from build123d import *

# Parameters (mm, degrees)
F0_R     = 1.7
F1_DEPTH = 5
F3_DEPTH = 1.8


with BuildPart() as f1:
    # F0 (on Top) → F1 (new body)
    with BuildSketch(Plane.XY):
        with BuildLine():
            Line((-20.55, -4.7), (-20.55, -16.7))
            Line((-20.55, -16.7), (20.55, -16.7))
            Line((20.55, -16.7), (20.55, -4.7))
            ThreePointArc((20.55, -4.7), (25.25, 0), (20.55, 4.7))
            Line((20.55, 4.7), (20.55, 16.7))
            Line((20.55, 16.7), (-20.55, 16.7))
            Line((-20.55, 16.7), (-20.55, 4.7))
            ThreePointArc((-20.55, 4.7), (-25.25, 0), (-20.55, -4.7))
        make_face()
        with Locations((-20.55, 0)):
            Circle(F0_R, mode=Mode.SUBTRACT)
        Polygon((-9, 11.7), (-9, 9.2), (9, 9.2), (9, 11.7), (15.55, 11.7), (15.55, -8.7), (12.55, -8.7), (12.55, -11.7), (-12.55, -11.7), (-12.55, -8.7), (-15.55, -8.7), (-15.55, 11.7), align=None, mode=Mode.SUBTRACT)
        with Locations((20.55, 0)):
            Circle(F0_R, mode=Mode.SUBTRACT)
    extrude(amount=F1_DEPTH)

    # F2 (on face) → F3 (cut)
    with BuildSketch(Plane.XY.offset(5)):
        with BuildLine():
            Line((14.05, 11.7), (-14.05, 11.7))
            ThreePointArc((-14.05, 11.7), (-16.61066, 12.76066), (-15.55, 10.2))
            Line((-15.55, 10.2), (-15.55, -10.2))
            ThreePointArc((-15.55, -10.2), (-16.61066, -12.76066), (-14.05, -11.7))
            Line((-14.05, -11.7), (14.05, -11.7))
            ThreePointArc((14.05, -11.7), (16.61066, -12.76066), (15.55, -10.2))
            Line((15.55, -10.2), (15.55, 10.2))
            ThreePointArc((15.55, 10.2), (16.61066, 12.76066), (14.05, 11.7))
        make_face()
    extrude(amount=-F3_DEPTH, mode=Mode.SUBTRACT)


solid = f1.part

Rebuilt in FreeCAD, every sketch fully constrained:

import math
import FreeCAD as App
import Part
import Sketcher
from FreeCAD import Vector

doc = App.newDocument("Part")
params = doc.addObject("Spreadsheet::Sheet", "Params")
for row, (alias, value) in enumerate([
    ("sketch1_diameter", "3.4 mm"),
    ("sketch1_radius", "4.7 mm"),
    ("sketch1_width", "18 mm"),
    ("sketch1_width2", "3 mm"),
    ("sketch1_height", "12 mm"),
    ("pad1_length", "5 mm"),
    ("sketch2_radius", "1.5 mm"),
    ("sketch2_width", "28.1 mm"),
    ("sketch2_height", "20.4 mm"),
    ("pocket1_length", "1.8 mm"),
], start=1):
    params.set(f"A{row}", alias)
    params.set(f"B{row}", "=" + value)
    params.setAlias(f"B{row}", alias)

body = doc.addObject("PartDesign::Body", "Body")

sketch1 = doc.addObject("Sketcher::SketchObject", "Sketch")
body.addObject(sketch1)
sketch1.AttachmentSupport = (doc.XY_Plane, [""])
sketch1.MapMode = "FlatFace"
sketch1.addGeometry([
    Part.LineSegment(Vector(-20.6, -4.7, 0), Vector(-20.6, -16.7, 0)),
    Part.LineSegment(Vector(-20.6, -16.7, 0), Vector(20.6, -16.7, 0)),
    Part.LineSegment(Vector(20.6, -16.7, 0), Vector(20.6, -4.7, 0)),
    Part.ArcOfCircle(Part.Circle(Vector(20.6, 0, 0), Vector(0, 0, 1), 4.7), math.radians(-90), math.radians(90)),
    Part.LineSegment(Vector(20.6, 4.7, 0), Vector(20.6, 16.7, 0)),
    Part.LineSegment(Vector(20.6, 16.7, 0), Vector(-20.6, 16.7, 0)),
    Part.LineSegment(Vector(-20.6, 16.7, 0), Vector(-20.6, 4.7, 0)),
    Part.ArcOfCircle(Part.Circle(Vector(-20.6, 0, 0), Vector(0, 0, 1), 4.7), math.radians(90), math.radians(270)),
    Part.Circle(Vector(-20.6, 0, 0), Vector(0, 0, 1), 1.7),
    Part.LineSegment(Vector(-15.6, 11.7, 0), Vector(-9, 11.7, 0)),
    Part.LineSegment(Vector(-9, 11.7, 0), Vector(-9, 9.2, 0)),
    Part.LineSegment(Vector(-9, 9.2, 0), Vector(9, 9.2, 0)),
    Part.LineSegment(Vector(9, 9.2, 0), Vector(9, 11.7, 0)),
    Part.LineSegment(Vector(9, 11.7, 0), Vector(15.6, 11.7, 0)),
    Part.LineSegment(Vector(15.6, 11.7, 0), Vector(15.6, -8.7, 0)),
    Part.LineSegment(Vector(15.6, -8.7, 0), Vector(12.6, -8.7, 0)),
    Part.LineSegment(Vector(12.6, -8.7, 0), Vector(12.6, -11.7, 0)),
    Part.LineSegment(Vector(12.6, -11.7, 0), Vector(-12.6, -11.7, 0)),
    Part.LineSegment(Vector(-12.6, -11.7, 0), Vector(-12.6, -8.7, 0)),
    Part.LineSegment(Vector(-12.6, -8.7, 0), Vector(-15.6, -8.7, 0)),
    Part.LineSegment(Vector(-15.6, -8.7, 0), Vector(-15.6, 11.7, 0)),
    Part.Circle(Vector(20.6, 0, 0), Vector(0, 0, 1), 1.7),
], False)
sketch1.addConstraint([
    Sketcher.Constraint("Coincident", 0, 2, 1, 1),
    Sketcher.Constraint("Coincident", 1, 2, 2, 1),
    Sketcher.Constraint("Coincident", 2, 2, 3, 1),
    Sketcher.Constraint("Coincident", 3, 2, 4, 1),
    Sketcher.Constraint("Coincident", 4, 2, 5, 1),
    Sketcher.Constraint("Coincident", 5, 2, 6, 1),
    Sketcher.Constraint("Coincident", 6, 2, 7, 1),
    Sketcher.Constraint("Coincident", 7, 2, 0, 1),
    Sketcher.Constraint("Coincident", 9, 2, 10, 1),
    Sketcher.Constraint("Coincident", 10, 2, 11, 1),
    Sketcher.Constraint("Coincident", 11, 2, 12, 1),
    Sketcher.Constraint("Coincident", 12, 2, 13, 1),
    Sketcher.Constraint("Coincident", 13, 2, 14, 1),
    Sketcher.Constraint("Coincident", 14, 2, 15, 1),
    Sketcher.Constraint("Coincident", 15, 2, 16, 1),
    Sketcher.Constraint("Coincident", 16, 2, 17, 1),
    Sketcher.Constraint("Coincident", 17, 2, 18, 1),
    Sketcher.Constraint("Coincident", 18, 2, 19, 1),
    Sketcher.Constraint("Coincident", 19, 2, 20, 1),
    Sketcher.Constraint("Coincident", 20, 2, 9, 1),
    Sketcher.Constraint("Vertical", 0),
    Sketcher.Constraint("Horizontal", 1),
    Sketcher.Constraint("Vertical", 2),
    Sketcher.Constraint("Vertical", 4),
    Sketcher.Constraint("Horizontal", 5),
    Sketcher.Constraint("Vertical", 6),
    Sketcher.Constraint("Horizontal", 9),
    Sketcher.Constraint("Vertical", 10),
    Sketcher.Constraint("Horizontal", 11),
    Sketcher.Constraint("Vertical", 12),
    Sketcher.Constraint("Horizontal", 13),
    Sketcher.Constraint("Vertical", 14),
    Sketcher.Constraint("Horizontal", 15),
    Sketcher.Constraint("Vertical", 16),
    Sketcher.Constraint("Horizontal", 17),
    Sketcher.Constraint("Vertical", 18),
    Sketcher.Constraint("Horizontal", 19),
    Sketcher.Constraint("Vertical", 20),
    Sketcher.Constraint("Coincident", 8, 3, 7, 3),
    Sketcher.Constraint("Coincident", 21, 3, 3, 3),
    Sketcher.Constraint("Equal", 3, 7),
    Sketcher.Constraint("Equal", 8, 21),
    Sketcher.Constraint("Symmetric", 3, 3, 7, 3, -1, 1),
    Sketcher.Constraint("Symmetric", 0, 2, 4, 2, -1, 1),
    Sketcher.Constraint("Symmetric", 3, 2, 6, 2, -2),
    Sketcher.Constraint("Symmetric", 9, 2, 12, 2, -2),
    Sketcher.Constraint("Symmetric", 15, 2, 18, 2, -2),
    Sketcher.Constraint("Vertical", 8, 3, 0, 2),
    Sketcher.Constraint("Vertical", 21, 3, 1, 2),
    Sketcher.Constraint("Equal", 9, 13),
    Sketcher.Constraint("Equal", 19, 16),
    Sketcher.Constraint("Diameter", 8, 3.4),
    Sketcher.Constraint("Radius", 3, 4.7),
    Sketcher.Constraint("DistanceX", 11, 1, 11, 2, 18.0),
    Sketcher.Constraint("DistanceX", 15, 2, 15, 1, 3.0),
    Sketcher.Constraint("DistanceY", 0, 2, 0, 1, 12.0),
    Sketcher.Constraint("DistanceX", 1, 1, 1, 2, 41.1),
    Sketcher.Constraint("DistanceX", 17, 2, 17, 1, 25.1),
    Sketcher.Constraint("DistanceY", 10, 2, 10, 1, 2.5),
    Sketcher.Constraint("DistanceY", 14, 2, 14, 1, 20.4),
    Sketcher.Constraint("DistanceY", 9, 2, 5, 2, 5.0),
])
sketch1.setExpression("Constraints[51]", "Params.sketch1_diameter")
sketch1.setExpression("Constraints[52]", "Params.sketch1_radius")
sketch1.setExpression("Constraints[53]", "Params.sketch1_width")
sketch1.setExpression("Constraints[54]", "Params.sketch1_width2")
sketch1.setExpression("Constraints[55]", "Params.sketch1_height")
pad1 = doc.addObject("PartDesign::Pad", "Pad")
body.addObject(pad1)
pad1.Profile = sketch1
pad1.setExpression("Length", "Params.pad1_length")

sketch2 = doc.addObject("Sketcher::SketchObject", "Sketch001")
body.addObject(sketch2)
sketch2.AttachmentSupport = (doc.XY_Plane, [""])
sketch2.MapMode = "FlatFace"
sketch2.AttachmentOffset = App.Placement(Vector(0, 0, 5), App.Rotation())
sketch2.addGeometry([
    Part.LineSegment(Vector(14.1, 11.7, 0), Vector(-14.1, 11.7, 0)),
    Part.ArcOfCircle(Part.Circle(Vector(-15.5, 11.7, 0), Vector(0, 0, 1), 1.5), math.radians(0), math.radians(270)),
    Part.LineSegment(Vector(-15.6, 10.2, 0), Vector(-15.6, -10.2, 0)),
    Part.ArcOfCircle(Part.Circle(Vector(-15.5, -11.7, 0), Vector(0, 0, 1), 1.5), math.radians(90), math.radians(360)),
    Part.LineSegment(Vector(-14.1, -11.7, 0), Vector(14.1, -11.7, 0)),
    Part.ArcOfCircle(Part.Circle(Vector(15.5, -11.7, 0), Vector(0, 0, 1), 1.5), math.radians(-180), math.radians(90)),
    Part.LineSegment(Vector(15.6, -10.2, 0), Vector(15.6, 10.2, 0)),
    Part.ArcOfCircle(Part.Circle(Vector(15.5, 11.7, 0), Vector(0, 0, 1), 1.5), math.radians(-90), math.radians(180)),
], False)
sketch2.addConstraint([
    Sketcher.Constraint("Coincident", 0, 2, 1, 1),
    Sketcher.Constraint("Coincident", 1, 2, 2, 1),
    Sketcher.Constraint("Coincident", 2, 2, 3, 1),
    Sketcher.Constraint("Coincident", 3, 2, 4, 1),
    Sketcher.Constraint("Coincident", 4, 2, 5, 1),
    Sketcher.Constraint("Coincident", 5, 2, 6, 1),
    Sketcher.Constraint("Coincident", 6, 2, 7, 1),
    Sketcher.Constraint("Coincident", 7, 2, 0, 1),
    Sketcher.Constraint("Horizontal", 0),
    Sketcher.Constraint("Vertical", 2),
    Sketcher.Constraint("Horizontal", 4),
    Sketcher.Constraint("Vertical", 6),
    Sketcher.Constraint("Equal", 1, 3),
    Sketcher.Constraint("Equal", 3, 5),
    Sketcher.Constraint("Equal", 5, 7),
    Sketcher.Constraint("Symmetric", 1, 3, 5, 3, -1, 1),
    Sketcher.Constraint("Symmetric", 3, 3, 7, 3, -1, 1),
    Sketcher.Constraint("Symmetric", 3, 3, 5, 3, -2),
    Sketcher.Constraint("Horizontal", 7, 3, 0, 2),
    Sketcher.Constraint("Horizontal", 5, 3, 3, 2),
    Sketcher.Constraint("Vertical", 3, 3, 1, 2),
    Sketcher.Constraint("Vertical", 7, 3, 5, 2),
    Sketcher.Constraint("Radius", 1, 1.5),
    Sketcher.Constraint("DistanceX", 0, 2, 0, 1, 28.1),
    Sketcher.Constraint("DistanceY", 2, 2, 2, 1, 20.4),
])
sketch2.setExpression("Constraints[22]", "Params.sketch2_radius")
sketch2.setExpression("Constraints[23]", "Params.sketch2_width")
sketch2.setExpression("Constraints[24]", "Params.sketch2_height")
pocket1 = doc.addObject("PartDesign::Pocket", "Pocket")
body.addObject(pocket1)
pocket1.Profile = sketch2
pocket1.setExpression("Length", "Params.pocket1_length")

doc.recompute()
